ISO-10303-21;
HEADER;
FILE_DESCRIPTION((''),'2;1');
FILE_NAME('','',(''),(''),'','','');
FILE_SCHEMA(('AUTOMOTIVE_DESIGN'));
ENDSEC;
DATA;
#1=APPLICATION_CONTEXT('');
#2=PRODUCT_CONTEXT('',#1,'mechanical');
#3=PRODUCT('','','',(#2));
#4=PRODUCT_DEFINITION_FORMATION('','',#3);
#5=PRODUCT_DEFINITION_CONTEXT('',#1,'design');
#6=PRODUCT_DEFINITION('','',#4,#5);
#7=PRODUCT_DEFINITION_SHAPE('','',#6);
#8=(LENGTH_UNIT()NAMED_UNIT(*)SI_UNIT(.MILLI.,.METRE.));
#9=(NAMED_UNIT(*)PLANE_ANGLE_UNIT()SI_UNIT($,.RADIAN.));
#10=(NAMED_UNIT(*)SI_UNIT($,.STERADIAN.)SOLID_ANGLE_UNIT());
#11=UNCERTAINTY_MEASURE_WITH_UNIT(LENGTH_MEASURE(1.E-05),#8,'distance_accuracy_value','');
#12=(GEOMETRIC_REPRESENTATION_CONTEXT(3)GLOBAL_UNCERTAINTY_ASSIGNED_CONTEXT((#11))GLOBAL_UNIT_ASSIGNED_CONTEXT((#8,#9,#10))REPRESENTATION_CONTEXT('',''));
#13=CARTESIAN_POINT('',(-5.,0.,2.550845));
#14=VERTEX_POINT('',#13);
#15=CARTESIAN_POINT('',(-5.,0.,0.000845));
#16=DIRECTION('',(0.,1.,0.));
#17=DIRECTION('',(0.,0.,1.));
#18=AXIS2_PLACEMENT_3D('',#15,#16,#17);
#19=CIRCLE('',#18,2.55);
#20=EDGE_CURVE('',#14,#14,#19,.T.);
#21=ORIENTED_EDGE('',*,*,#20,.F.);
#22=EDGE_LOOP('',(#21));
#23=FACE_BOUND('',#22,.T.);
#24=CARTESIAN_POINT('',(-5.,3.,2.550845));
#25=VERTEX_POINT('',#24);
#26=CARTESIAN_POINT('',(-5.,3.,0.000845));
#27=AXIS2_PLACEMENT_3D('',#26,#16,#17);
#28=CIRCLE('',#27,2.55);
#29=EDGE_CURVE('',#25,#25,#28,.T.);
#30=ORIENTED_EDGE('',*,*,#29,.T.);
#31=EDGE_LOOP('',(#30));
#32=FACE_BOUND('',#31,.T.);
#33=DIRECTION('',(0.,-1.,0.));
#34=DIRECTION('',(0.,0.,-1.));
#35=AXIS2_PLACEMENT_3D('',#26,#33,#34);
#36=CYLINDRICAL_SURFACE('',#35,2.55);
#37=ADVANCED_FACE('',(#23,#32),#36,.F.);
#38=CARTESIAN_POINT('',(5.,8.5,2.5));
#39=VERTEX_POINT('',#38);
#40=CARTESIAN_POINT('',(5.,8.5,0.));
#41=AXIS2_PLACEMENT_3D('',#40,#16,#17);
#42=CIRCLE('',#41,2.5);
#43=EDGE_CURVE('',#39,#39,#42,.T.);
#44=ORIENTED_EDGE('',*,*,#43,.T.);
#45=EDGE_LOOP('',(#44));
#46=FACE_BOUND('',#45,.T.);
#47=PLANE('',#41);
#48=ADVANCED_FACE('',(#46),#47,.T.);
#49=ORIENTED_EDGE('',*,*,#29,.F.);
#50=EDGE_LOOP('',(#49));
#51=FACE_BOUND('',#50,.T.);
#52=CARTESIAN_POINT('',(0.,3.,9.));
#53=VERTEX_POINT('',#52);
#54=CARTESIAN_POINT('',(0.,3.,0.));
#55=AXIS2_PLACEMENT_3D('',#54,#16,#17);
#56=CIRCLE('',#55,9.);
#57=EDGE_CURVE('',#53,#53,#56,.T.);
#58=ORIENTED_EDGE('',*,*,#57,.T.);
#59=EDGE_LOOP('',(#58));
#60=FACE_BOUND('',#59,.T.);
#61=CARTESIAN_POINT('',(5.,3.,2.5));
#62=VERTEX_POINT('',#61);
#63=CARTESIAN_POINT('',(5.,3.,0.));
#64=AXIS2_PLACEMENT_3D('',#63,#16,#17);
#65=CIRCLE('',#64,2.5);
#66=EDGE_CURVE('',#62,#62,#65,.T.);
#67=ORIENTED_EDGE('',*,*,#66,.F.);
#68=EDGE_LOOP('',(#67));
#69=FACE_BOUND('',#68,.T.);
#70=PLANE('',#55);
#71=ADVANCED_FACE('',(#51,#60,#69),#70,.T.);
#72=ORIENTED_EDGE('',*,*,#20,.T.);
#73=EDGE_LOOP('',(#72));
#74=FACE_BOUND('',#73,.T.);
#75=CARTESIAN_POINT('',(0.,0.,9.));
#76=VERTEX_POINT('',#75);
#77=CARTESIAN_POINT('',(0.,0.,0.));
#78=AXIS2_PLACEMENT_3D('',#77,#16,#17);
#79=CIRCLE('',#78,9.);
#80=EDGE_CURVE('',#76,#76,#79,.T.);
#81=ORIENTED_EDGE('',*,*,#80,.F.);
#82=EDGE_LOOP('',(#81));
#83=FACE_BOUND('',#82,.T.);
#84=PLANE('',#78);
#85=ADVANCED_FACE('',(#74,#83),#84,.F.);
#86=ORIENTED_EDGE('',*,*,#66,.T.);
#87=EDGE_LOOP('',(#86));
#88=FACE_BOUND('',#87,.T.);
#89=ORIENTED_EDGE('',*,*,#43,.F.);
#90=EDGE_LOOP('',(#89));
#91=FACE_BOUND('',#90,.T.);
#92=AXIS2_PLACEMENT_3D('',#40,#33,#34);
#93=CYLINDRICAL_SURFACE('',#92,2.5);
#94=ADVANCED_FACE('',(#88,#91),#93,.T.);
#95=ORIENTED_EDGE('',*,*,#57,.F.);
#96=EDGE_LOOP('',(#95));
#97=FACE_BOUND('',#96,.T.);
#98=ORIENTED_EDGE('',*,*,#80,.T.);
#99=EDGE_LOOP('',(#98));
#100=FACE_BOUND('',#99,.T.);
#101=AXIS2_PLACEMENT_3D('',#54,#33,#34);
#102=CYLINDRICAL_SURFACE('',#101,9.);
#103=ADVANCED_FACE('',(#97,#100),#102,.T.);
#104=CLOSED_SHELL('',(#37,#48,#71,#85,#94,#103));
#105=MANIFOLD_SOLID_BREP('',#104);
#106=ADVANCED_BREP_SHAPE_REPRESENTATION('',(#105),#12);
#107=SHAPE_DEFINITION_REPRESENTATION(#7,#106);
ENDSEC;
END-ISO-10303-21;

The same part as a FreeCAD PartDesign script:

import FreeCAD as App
import Part
import Sketcher

V = App.Vector
Q = App.Units.Quantity

doc = App.newDocument("Part")
params = doc.addObject("Spreadsheet::Sheet", "Params")
for row, (alias, value) in enumerate([
    ("sketch1_diameter", "18 mm"),
    ("sketch1_diameter2", "5.1 mm"),
    ("pad1_length", "3 mm"),
    ("sketch2_diameter", "5 mm"),
    ("pad2_length", "5.5 mm"),
], start=1):
    params.set(f"A{row}", alias)
    params.set(f"B{row}", "=" + value)
    params.setAlias(f"B{row}", alias)

body = doc.addObject("PartDesign::Body", "Body")

# Sketch on XZ plane
sketch1 = doc.addObject("Sketcher::SketchObject", "Sketch")
body.addObject(sketch1)
sketch1.AttachmentSupport = (doc.XZ_Plane, [""])
sketch1.MapMode = "FlatFace"
sketch1.addGeometry([
    Part.Circle(V(0, 0, 0), V(0, 0, 1), 9),
    Part.Circle(V(-5, 0.000845, 0), V(0, 0, 1), 2.55),
], False)
sketch1.addConstraint([
    Sketcher.Constraint("Coincident", 0, 3, -1, 1),
    Sketcher.Constraint("Diameter", 0, Q("18 mm")),
    Sketcher.Constraint("Diameter", 1, Q("5.1 mm")),
    Sketcher.Constraint("DistanceX", 1, 3, -1, 1, Q("5 mm")),
    Sketcher.Constraint("DistanceY", -1, 1, 1, 3, Q("0.000845 mm")),
])
sketch1.setExpression("Constraints[1]", "Params.sketch1_diameter")
sketch1.setExpression("Constraints[2]", "Params.sketch1_diameter2")
pad1 = doc.addObject("PartDesign::Pad", "Pad")
body.addObject(pad1)
pad1.Profile = sketch1
pad1.setExpression("Length", "Params.pad1_length")
pad1.Reversed = True

# Sketch on XZ plane
sketch2 = doc.addObject("Sketcher::SketchObject", "Sketch001")
body.addObject(sketch2)
sketch2.AttachmentSupport = (doc.XZ_Plane, [""])
sketch2.MapMode = "FlatFace"
sketch2.AttachmentOffset = App.Placement(V(0, 0, -3), App.Rotation())
sketch2.addGeometry(Part.Circle(V(5, 0, 0), V(0, 0, 1), 2.5), False)
sketch2.addConstraint([
    Sketcher.Constraint("PointOnObject", 0, 3, -1),
    Sketcher.Constraint("Diameter", 0, Q("5 mm")),
    Sketcher.Constraint("DistanceX", -1, 1, 0, 3, Q("5 mm")),
])
sketch2.setExpression("Constraints[1]", "Params.sketch2_diameter")
pad2 = doc.addObject("PartDesign::Pad", "Pad001")
body.addObject(pad2)
pad2.Profile = sketch2
pad2.setExpression("Length", "Params.pad2_length")
pad2.Reversed = True

doc.recompute()
